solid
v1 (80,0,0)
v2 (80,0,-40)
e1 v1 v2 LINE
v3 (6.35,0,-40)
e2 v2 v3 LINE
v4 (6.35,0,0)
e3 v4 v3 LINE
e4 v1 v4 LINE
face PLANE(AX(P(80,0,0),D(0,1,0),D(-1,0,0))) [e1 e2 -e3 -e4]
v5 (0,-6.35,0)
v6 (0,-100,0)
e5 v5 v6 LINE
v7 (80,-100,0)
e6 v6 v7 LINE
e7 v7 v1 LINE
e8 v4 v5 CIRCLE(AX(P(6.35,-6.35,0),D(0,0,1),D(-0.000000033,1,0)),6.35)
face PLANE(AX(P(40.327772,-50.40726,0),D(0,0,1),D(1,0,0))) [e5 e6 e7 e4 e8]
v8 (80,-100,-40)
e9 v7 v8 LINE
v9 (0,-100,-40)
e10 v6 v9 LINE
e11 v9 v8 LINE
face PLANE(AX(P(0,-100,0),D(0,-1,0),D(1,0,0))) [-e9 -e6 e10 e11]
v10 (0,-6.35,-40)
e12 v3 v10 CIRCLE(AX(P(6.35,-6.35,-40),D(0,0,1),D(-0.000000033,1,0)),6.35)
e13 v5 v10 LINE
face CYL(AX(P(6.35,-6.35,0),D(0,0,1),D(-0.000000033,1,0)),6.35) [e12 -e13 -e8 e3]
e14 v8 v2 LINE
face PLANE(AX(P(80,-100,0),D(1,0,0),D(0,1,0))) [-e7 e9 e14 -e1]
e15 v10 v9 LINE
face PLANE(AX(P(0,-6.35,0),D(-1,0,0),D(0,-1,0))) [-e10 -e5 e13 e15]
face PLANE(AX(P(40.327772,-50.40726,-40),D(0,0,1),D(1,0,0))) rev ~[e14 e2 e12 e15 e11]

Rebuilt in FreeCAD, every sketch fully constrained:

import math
import FreeCAD as App
import Part
import Sketcher

V = App.Vector
Q = App.Units.Quantity

doc = App.newDocument("Part")
body = doc.addObject("PartDesign::Body", "Body")

sketch1 = body.newObject("Sketcher::SketchObject", "Sketch")
sketch1.AttachmentSupport = (doc.getObject("XY_Plane"), [""])
sketch1.MapMode = "FlatFace"
sketch1.addGeometry(Part.LineSegment(V(80, 0, 0), V(6, 0, 0)), False)
sketch1.addGeometry(Part.ArcOfCircle(Part.Circle(V(6, -6, 0), V(0, 0, 1), 6), math.radians(90), math.radians(180)), False)
sketch1.addGeometry(Part.LineSegment(V(0, -6, 0), V(0, -100, 0)), False)
sketch1.addGeometry(Part.LineSegment(V(0, -100, 0), V(80, -100, 0)), False)
sketch1.addGeometry(Part.LineSegment(V(80, -100, 0), V(80, 0, 0)), False)
sketch1.addConstraint(Sketcher.Constraint("Tangent", 0, 2, 1, 1))
sketch1.addConstraint(Sketcher.Constraint("Tangent", 1, 2, 2, 1))
sketch1.addConstraint(Sketcher.Constraint("Coincident", 2, 2, 3, 1))
sketch1.addConstraint(Sketcher.Constraint("Coincident", 3, 2, 4, 1))
sketch1.addConstraint(Sketcher.Constraint("Coincident", 4, 2, 0, 1))
sketch1.addConstraint(Sketcher.Constraint("Horizontal", 0))
sketch1.addConstraint(Sketcher.Constraint("Vertical", 2))
sketch1.addConstraint(Sketcher.Constraint("Horizontal", 3))
sketch1.addConstraint(Sketcher.Constraint("Vertical", 4))
sketch1.addConstraint(Sketcher.Constraint("PointOnObject", 0, 2, -1))
sketch1.addConstraint(Sketcher.Constraint("PointOnObject", 1, 2, -2))
sketch1.addConstraint(Sketcher.Constraint("DistanceX", 3, 1, 3, 2, Q("80 mm")))
sketch1.addConstraint(Sketcher.Constraint("DistanceY", 4, 1, 4, 2, Q("100 mm")))
sketch1.addConstraint(Sketcher.Constraint("Radius", 1, Q("6.35 mm")))
pad1 = body.newObject("PartDesign::Pad", "Pad")
pad1.Profile = sketch1
pad1.Length = 40
pad1.Reversed = True

doc.recompute()
